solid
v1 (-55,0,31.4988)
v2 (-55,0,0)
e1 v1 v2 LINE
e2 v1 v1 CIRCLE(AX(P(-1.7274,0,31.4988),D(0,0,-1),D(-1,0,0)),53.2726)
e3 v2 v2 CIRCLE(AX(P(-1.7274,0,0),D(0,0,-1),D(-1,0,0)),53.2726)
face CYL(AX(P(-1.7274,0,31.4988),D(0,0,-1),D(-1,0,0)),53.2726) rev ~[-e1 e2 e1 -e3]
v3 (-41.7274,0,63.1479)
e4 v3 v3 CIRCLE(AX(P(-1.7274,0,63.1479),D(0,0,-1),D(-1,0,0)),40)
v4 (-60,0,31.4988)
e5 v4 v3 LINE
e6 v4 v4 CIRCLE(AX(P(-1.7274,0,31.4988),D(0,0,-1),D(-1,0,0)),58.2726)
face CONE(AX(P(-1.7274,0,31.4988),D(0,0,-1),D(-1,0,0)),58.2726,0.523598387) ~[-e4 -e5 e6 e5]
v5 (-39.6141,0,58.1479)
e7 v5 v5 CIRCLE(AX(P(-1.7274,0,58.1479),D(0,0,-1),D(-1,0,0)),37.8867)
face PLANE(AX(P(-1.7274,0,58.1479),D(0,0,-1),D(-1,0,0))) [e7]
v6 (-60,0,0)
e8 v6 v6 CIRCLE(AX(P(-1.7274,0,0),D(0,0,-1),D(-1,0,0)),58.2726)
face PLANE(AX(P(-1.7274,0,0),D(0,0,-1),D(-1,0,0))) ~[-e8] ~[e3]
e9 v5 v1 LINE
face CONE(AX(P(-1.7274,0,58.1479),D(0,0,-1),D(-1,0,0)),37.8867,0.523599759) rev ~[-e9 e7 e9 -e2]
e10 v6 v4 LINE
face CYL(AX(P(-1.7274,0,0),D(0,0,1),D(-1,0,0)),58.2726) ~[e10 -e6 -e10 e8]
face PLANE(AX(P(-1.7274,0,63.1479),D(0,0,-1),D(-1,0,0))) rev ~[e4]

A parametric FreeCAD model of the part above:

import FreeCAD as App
import Part
import Sketcher
Q = App.Units.Quantity


def add_polygon(sketch, points):
    """Adds a closed chain of lines whose ends are joined by coincident constraints."""
    first, n = sketch.GeometryCount, len(points)
    for a, b in zip(points, points[1:] + points[:1]):
        sketch.addGeometry(Part.LineSegment(App.Vector(*a, 0), App.Vector(*b, 0)), False)
    for i in range(n):
        sketch.addConstraint(Sketcher.Constraint("Coincident", first + i, 2, first + (i + 1) % n, 1))

doc = App.newDocument("Part")
params = doc.addObject("Spreadsheet::Sheet", "Params")
for row, (alias, value) in enumerate([
    ("sketch1_width", "5 mm"),
    ("sketch1_width2", "40 mm"),
    ("revolution_angle", "360 deg"),
], start=1):
    params.set(f"A{row}", alias)
    params.set(f"B{row}", "=" + value)
    params.setAlias(f"B{row}", alias)

body = doc.addObject("PartDesign::Body", "Body")

# Sketch on XZ plane
sketch1 = body.newObject("Sketcher::SketchObject", "Sketch")
sketch1.AttachmentSupport = (doc.getObject("XZ_Plane"), [""])
sketch1.MapMode = "FlatFace"
add_polygon(sketch1, [(-55, 0), (-60, 0), (-60, 31.4988), (-41.7274, 63.1479), (-1.7274, 63.1479), (-1.7274, 58.1479), (-39.6141, 58.1479), (-55, 31.4988)])  # lines 0-7
sketch1.addGeometry(Part.LineSegment(App.Vector(-1.7274, 63.1479, 0), App.Vector(-1.7274, 0, 0)), True)  # axis
sketch1.addConstraint(Sketcher.Constraint("Horizontal", 0))
sketch1.addConstraint(Sketcher.Constraint("Vertical", 1))
sketch1.addConstraint(Sketcher.Constraint("Horizontal", 3))
sketch1.addConstraint(Sketcher.Constraint("Vertical", 4))
sketch1.addConstraint(Sketcher.Constraint("Horizontal", 5))
sketch1.addConstraint(Sketcher.Constraint("Vertical", 7))
sketch1.addConstraint(Sketcher.Constraint("Vertical", 8))
sketch1.addConstraint(Sketcher.Constraint("Coincident", 8, 1, 3, 2))
sketch1.addConstraint(Sketcher.Constraint("PointOnObject", 0, 2, -1))
sketch1.addConstraint(Sketcher.Constraint("PointOnObject", 8, 2, -1))
sketch1.addConstraint(Sketcher.Constraint("Parallel", 2, 6))
sketch1.addConstraint(Sketcher.Constraint("Horizontal", 1, 2, 6, 2))
sketch1.addConstraint(Sketcher.Constraint("Equal", 0, 4))
sketch1.addConstraint(Sketcher.Constraint("DistanceX", 0, 2, 0, 1, 5.0))
sketch1.addConstraint(Sketcher.Constraint("DistanceX", 3, 1, 3, 2, 40.0))
sketch1.addConstraint(Sketcher.Constraint("Angle", 2, Q("60 deg")))
sketch1.addConstraint(Sketcher.Constraint("DistanceY", 1, 1, 1, 2, 31.4988))
sketch1.addConstraint(Sketcher.Constraint("DistanceX", 0, 2, -1, 1, 60.0))
sketch1.addConstraint(Sketcher.Constraint("DistanceY", 1, 2, 2, 2, 31.649))
sketch1.setExpression("Constraints[21]", "Params.sketch1_width")
sketch1.setExpression("Constraints[22]", "Params.sketch1_width2")
revolution = body.newObject("PartDesign::Revolution", "Revolution")
revolution.Profile = sketch1
revolution.ReferenceAxis = (sketch1, ["Axis0"])
revolution.setExpression("Angle", "Params.revolution_angle")

doc.recompute()
